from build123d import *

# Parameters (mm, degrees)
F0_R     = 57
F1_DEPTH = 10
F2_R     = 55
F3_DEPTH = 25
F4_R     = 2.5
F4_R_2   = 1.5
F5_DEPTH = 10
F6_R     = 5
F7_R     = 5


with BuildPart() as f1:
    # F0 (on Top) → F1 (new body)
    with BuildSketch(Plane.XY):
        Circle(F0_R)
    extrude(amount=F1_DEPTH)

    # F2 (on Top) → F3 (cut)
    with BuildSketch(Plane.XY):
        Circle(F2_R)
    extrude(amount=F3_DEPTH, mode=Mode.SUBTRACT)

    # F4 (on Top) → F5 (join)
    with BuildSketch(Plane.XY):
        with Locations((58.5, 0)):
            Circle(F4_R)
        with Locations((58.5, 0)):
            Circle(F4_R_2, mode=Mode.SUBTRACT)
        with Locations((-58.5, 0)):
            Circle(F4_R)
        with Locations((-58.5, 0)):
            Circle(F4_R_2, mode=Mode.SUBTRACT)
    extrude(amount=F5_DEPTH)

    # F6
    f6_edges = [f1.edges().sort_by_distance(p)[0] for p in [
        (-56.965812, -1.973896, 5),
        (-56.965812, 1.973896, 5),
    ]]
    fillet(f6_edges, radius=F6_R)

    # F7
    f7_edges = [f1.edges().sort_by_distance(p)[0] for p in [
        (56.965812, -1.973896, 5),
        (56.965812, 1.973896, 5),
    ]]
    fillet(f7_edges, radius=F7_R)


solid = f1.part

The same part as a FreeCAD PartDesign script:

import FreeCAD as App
import Part
import Sketcher


def edges_at(feature, points):
    """Names of the edges that pass closest to the given points."""
    edges = feature.Shape.Edges
    near = lambda p: min(range(len(edges)), key=lambda i: edges[i].distToShape(Part.Vertex(*p))[0])
    return sorted({f"Edge{near(p) + 1}" for p in points})

doc = App.newDocument("Part")
body = doc.addObject("PartDesign::Body", "Body")

# Sketch on XY plane
sketch1 = body.newObject("Sketcher::SketchObject", "Sketch")
sketch1.AttachmentSupport = (doc.getObject("XY_Plane"), [""])
sketch1.MapMode = "FlatFace"
sketch1.addGeometry(Part.Circle(App.Vector(0, 0, 0), App.Vector(0, 0, 1), 57), False)
sketch1.addConstraint(Sketcher.Constraint("Coincident", 0, 3, -1, 1))
sketch1.addConstraint(Sketcher.Constraint("Diameter", 0, 114.0))
pad1 = body.newObject("PartDesign::Pad", "Pad")
pad1.Profile = sketch1
pad1.Length = 10

# Sketch on XY plane
sketch2 = body.newObject("Sketcher::SketchObject", "Sketch001")
sketch2.AttachmentSupport = (doc.getObject("XY_Plane"), [""])
sketch2.MapMode = "FlatFace"
sketch2.addGeometry(Part.Circle(App.Vector(0, 0, 0), App.Vector(0, 0, 1), 55), False)
sketch2.addConstraint(Sketcher.Constraint("Coincident", 0, 3, -1, 1))
sketch2.addConstraint(Sketcher.Constraint("Diameter", 0, 110.0))
pocket1 = body.newObject("PartDesign::Pocket", "Pocket")
pocket1.Profile = sketch2
pocket1.Length = 25
pocket1.Reversed = True

# Sketch on XY plane
sketch3 = body.newObject("Sketcher::SketchObject", "Sketch002")
sketch3.AttachmentSupport = (doc.getObject("XY_Plane"), [""])
sketch3.MapMode = "FlatFace"
sketch3.addGeometry(Part.Circle(App.Vector(58.5, 0, 0), App.Vector(0, 0, 1), 2.5), False)
sketch3.addGeometry(Part.Circle(App.Vector(58.5, 0, 0), App.Vector(0, 0, 1), 1.5), False)
sketch3.addGeometry(Part.Circle(App.Vector(-58.5, 0, 0), App.Vector(0, 0, 1), 2.5), False)
sketch3.addGeometry(Part.Circle(App.Vector(-58.5, 0, 0), App.Vector(0, 0, 1), 1.5), False)
sketch3.addConstraint(Sketcher.Constraint("Coincident", 1, 3, 0, 3))
sketch3.addConstraint(Sketcher.Constraint("Coincident", 3, 3, 2, 3))
sketch3.addConstraint(Sketcher.Constraint("Equal", 0, 2))
sketch3.addConstraint(Sketcher.Constraint("Equal", 1, 3))
sketch3.addConstraint(Sketcher.Constraint("Symmetric", 0, 3, 2, 3, -1, 1))
sketch3.addConstraint(Sketcher.Constraint("PointOnObject", 0, 3, -1))
sketch3.addConstraint(Sketcher.Constraint("Diameter", 0, 5.0))
sketch3.addConstraint(Sketcher.Constraint("Diameter", 1, 3.0))
sketch3.addConstraint(Sketcher.Constraint("DistanceX", 2, 3, 0, 3, 117.0))
pad2 = body.newObject("PartDesign::Pad", "Pad001")
pad2.Profile = sketch3
pad2.Length = 10
doc.recompute()

fillet = body.newObject("PartDesign::Fillet", "Fillet")
fillet.Base = (pad2, edges_at(pad2, [(-56.966, -1.974, 5), (-56.966, 1.974, 5)]))
fillet.Radius = 5
doc.recompute()

fillet2 = body.newObject("PartDesign::Fillet", "Fillet001")
fillet2.Base = (fillet, edges_at(fillet, [(56.966, -1.974, 5), (56.966, 1.974, 5)]))
fillet2.Radius = 5

doc.recompute()
